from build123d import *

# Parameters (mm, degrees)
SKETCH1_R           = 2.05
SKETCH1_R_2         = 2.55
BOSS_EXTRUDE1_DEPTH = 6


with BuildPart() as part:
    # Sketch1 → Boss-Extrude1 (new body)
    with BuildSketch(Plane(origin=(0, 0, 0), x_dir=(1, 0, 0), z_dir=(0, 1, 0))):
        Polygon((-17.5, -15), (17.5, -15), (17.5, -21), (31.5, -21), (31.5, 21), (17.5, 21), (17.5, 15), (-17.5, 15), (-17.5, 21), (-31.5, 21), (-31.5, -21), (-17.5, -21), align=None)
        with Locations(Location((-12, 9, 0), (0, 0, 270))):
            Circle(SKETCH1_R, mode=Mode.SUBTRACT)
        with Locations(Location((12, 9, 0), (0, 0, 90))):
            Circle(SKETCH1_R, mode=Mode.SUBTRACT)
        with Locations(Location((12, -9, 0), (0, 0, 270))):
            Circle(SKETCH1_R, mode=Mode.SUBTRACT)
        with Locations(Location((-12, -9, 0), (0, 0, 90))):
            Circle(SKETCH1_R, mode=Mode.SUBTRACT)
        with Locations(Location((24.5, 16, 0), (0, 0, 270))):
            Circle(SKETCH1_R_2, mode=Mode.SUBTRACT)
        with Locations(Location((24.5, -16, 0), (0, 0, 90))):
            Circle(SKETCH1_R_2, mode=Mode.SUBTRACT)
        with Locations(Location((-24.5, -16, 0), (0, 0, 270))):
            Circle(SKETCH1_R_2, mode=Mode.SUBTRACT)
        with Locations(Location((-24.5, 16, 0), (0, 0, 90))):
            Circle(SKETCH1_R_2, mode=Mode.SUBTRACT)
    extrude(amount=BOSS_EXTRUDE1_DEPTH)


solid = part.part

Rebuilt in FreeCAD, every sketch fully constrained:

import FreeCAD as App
import Part
import Sketcher


def add_polygon(sketch, points):
    """Adds a closed chain of lines whose ends are joined by coincident constraints."""
    first, n = sketch.GeometryCount, len(points)
    for a, b in zip(points, points[1:] + points[:1]):
        sketch.addGeometry(Part.LineSegment(App.Vector(*a, 0), App.Vector(*b, 0)), False)
    for i in range(n):
        sketch.addConstraint(Sketcher.Constraint("Coincident", first + i, 2, first + (i + 1) % n, 1))

doc = App.newDocument("Part")
body = doc.addObject("PartDesign::Body", "Body")

sketch1 = body.newObject("Sketcher::SketchObject", "Sketch")
sketch1.AttachmentSupport = (doc.getObject("XZ_Plane"), [""])
sketch1.MapMode = "FlatFace"
add_polygon(sketch1, [(-17.5, 15), (17.5, 15), (17.5, 21), (31.5, 21), (31.5, -21), (17.5, -21), (17.5, -15), (-17.5, -15), (-17.5, -21), (-31.5, -21), (-31.5, 21), (-17.5, 21)])
sketch1.addGeometry(Part.Circle(App.Vector(-24.5, 16, 0), App.Vector(0, 0, 1), 2.55), False)
sketch1.addGeometry(Part.Circle(App.Vector(-12, 9, 0), App.Vector(0, 0, 1), 2.05), False)
sketch1.addGeometry(Part.Circle(App.Vector(24.5, 16, 0), App.Vector(0, 0, 1), 2.55), False)
sketch1.addGeometry(Part.Circle(App.Vector(12, 9, 0), App.Vector(0, 0, 1), 2.05), False)
sketch1.addGeometry(Part.Circle(App.Vector(-12, -9, 0), App.Vector(0, 0, 1), 2.05), False)
sketch1.addGeometry(Part.Circle(App.Vector(-24.5, -16, 0), App.Vector(0, 0, 1), 2.55), False)
sketch1.addGeometry(Part.Circle(App.Vector(12, -9, 0), App.Vector(0, 0, 1), 2.05), False)
sketch1.addGeometry(Part.Circle(App.Vector(24.5, -16, 0), App.Vector(0, 0, 1), 2.55), False)
sketch1.addConstraint([
    Sketcher.Constraint("Horizontal", 0),
    Sketcher.Constraint("Vertical", 1),
    Sketcher.Constraint("Horizontal", 2),
    Sketcher.Constraint("Vertical", 3),
    Sketcher.Constraint("Horizontal", 4),
    Sketcher.Constraint("Vertical", 5),
    Sketcher.Constraint("Horizontal", 6),
    Sketcher.Constraint("Vertical", 7),
    Sketcher.Constraint("Horizontal", 8),
    Sketcher.Constraint("Vertical", 9),
    Sketcher.Constraint("Horizontal", 10),
    Sketcher.Constraint("Vertical", 11),
    Sketcher.Constraint("Equal", 12, 14),
    Sketcher.Constraint("Equal", 13, 15),
    Sketcher.Constraint("Equal", 15, 16),
    Sketcher.Constraint("Equal", 14, 17),
    Sketcher.Constraint("Equal", 16, 18),
    Sketcher.Constraint("Equal", 17, 19),
    Sketcher.Constraint("Symmetric", 15, 3, 16, 3, -1, 1),
    Sketcher.Constraint("Symmetric", 14, 3, 17, 3, -1, 1),
    Sketcher.Constraint("Symmetric", 13, 3, 18, 3, -1, 1),
    Sketcher.Constraint("Symmetric", 12, 3, 19, 3, -1, 1),
    Sketcher.Constraint("Symmetric", 0, 2, 6, 2, -1, 1),
    Sketcher.Constraint("Symmetric", 2, 2, 8, 2, -1, 1),
    Sketcher.Constraint("Symmetric", 4, 2, 10, 2, -1, 1),
    Sketcher.Constraint("Symmetric", 12, 3, 14, 3, -2),
    Sketcher.Constraint("Symmetric", 13, 3, 15, 3, -2),
    Sketcher.Constraint("Symmetric", 4, 2, 7, 2, -2),
    Sketcher.Constraint("Diameter", 12, 5.1),
    Sketcher.Constraint("Diameter", 13, 4.1),
    Sketcher.Constraint("DistanceX", 0, 1, 0, 2, 35.0),
    Sketcher.Constraint("DistanceX", 2, 1, 2, 2, 14.0),
    Sketcher.Constraint("DistanceY", 1, 1, 1, 2, 6.0),
    Sketcher.Constraint("DistanceY", 3, 2, 3, 1, 42.0),
    Sketcher.Constraint("DistanceY", -1, 1, 12, 3, 16.0),
    Sketcher.Constraint("DistanceX", 13, 3, -1, 1, 12.0),
    Sketcher.Constraint("DistanceY", -1, 1, 13, 3, 9.0),
    Sketcher.Constraint("DistanceX", 12, 3, 14, 3, 49.0),
])
pad1 = body.newObject("PartDesign::Pad", "Pad")
pad1.Profile = sketch1
pad1.Length = 6
pad1.Reversed = True

doc.recompute()
